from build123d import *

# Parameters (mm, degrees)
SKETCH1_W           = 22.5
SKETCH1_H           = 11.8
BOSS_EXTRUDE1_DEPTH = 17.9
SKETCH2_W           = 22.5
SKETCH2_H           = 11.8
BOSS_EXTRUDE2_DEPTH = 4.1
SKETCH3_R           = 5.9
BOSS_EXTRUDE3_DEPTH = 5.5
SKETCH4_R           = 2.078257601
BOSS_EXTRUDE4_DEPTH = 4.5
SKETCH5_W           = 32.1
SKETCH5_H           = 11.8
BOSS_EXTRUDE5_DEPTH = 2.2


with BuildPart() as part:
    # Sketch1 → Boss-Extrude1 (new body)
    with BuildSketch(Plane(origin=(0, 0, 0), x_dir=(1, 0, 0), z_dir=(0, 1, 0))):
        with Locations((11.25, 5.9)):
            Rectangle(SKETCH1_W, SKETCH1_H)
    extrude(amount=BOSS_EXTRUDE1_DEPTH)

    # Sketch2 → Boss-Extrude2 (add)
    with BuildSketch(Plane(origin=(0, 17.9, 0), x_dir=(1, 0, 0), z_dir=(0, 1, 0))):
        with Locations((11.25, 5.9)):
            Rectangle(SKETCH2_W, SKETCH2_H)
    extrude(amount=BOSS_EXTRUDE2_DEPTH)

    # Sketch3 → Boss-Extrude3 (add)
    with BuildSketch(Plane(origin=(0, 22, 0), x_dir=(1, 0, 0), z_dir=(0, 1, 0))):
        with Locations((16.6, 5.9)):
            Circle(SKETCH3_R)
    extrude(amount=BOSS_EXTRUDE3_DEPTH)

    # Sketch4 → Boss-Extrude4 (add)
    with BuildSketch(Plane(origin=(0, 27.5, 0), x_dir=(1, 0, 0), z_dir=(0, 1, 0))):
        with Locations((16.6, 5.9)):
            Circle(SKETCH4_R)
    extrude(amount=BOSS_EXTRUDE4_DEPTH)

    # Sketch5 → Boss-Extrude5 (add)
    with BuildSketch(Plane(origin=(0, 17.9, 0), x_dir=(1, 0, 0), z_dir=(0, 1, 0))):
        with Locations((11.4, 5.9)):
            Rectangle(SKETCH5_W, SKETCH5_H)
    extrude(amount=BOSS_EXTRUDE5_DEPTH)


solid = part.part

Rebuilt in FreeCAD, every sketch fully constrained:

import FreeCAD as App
import Part
import Sketcher


def add_polygon(sketch, points):
    """Adds a closed chain of lines whose ends are joined by coincident constraints."""
    first, n = sketch.GeometryCount, len(points)
    for a, b in zip(points, points[1:] + points[:1]):
        sketch.addGeometry(Part.LineSegment(App.Vector(*a, 0), App.Vector(*b, 0)), False)
    for i in range(n):
        sketch.addConstraint(Sketcher.Constraint("Coincident", first + i, 2, first + (i + 1) % n, 1))

doc = App.newDocument("Part")
body = doc.addObject("PartDesign::Body", "Body")

# Sketch on XZ plane
sketch1 = doc.addObject("Sketcher::SketchObject", "Sketch")
body.addObject(sketch1)
sketch1.AttachmentSupport = (doc.XZ_Plane, [""])
sketch1.MapMode = "FlatFace"
add_polygon(sketch1, [(0, -12), (0, 0), (22, 0), (22, -12)])  # lines 0-3
sketch1.addConstraint([
    Sketcher.Constraint("Vertical", 0),
    Sketcher.Constraint("Horizontal", 1),
    Sketcher.Constraint("Vertical", 2),
    Sketcher.Constraint("Horizontal", 3),
    Sketcher.Constraint("Coincident", 0, 2, -1, 1),
    Sketcher.Constraint("DistanceX", 1, 1, 1, 2, 22.5),
    Sketcher.Constraint("DistanceY", 0, 1, 0, 2, 11.8),
])
pad1 = doc.addObject("PartDesign::Pad", "Pad")
body.addObject(pad1)
pad1.Profile = sketch1
pad1.Length = 17.9
pad1.Reversed = True

# Sketch on XZ plane
sketch2 = doc.addObject("Sketcher::SketchObject", "Sketch001")
body.addObject(sketch2)
sketch2.AttachmentSupport = (doc.XZ_Plane, [""])
sketch2.MapMode = "FlatFace"
sketch2.AttachmentOffset = App.Placement(App.Vector(0, 0, -17.9), App.Rotation())
add_polygon(sketch2, [(0, -12), (0, 0), (22, 0), (22, -12)])  # lines 0-3
sketch2.addConstraint([
    Sketcher.Constraint("Vertical", 0),
    Sketcher.Constraint("Horizontal", 1),
    Sketcher.Constraint("Vertical", 2),
    Sketcher.Constraint("Horizontal", 3),
    Sketcher.Constraint("Coincident", 0, 2, -1, 1),
    Sketcher.Constraint("DistanceX", 1, 1, 1, 2, 22.5),
    Sketcher.Constraint("DistanceY", 0, 1, 0, 2, 11.8),
])
pad2 = doc.addObject("PartDesign::Pad", "Pad001")
body.addObject(pad2)
pad2.Profile = sketch2
pad2.Length = 4.1
pad2.Reversed = True

# Sketch on XZ plane
sketch3 = doc.addObject("Sketcher::SketchObject", "Sketch002")
body.addObject(sketch3)
sketch3.AttachmentSupport = (doc.XZ_Plane, [""])
sketch3.MapMode = "FlatFace"
sketch3.AttachmentOffset = App.Placement(App.Vector(0, 0, -22), App.Rotation())
sketch3.addGeometry(Part.Circle(App.Vector(17, -6, 0), App.Vector(0, 0, 1), 6), False)
sketch3.addConstraint([
    Sketcher.Constraint("Diameter", 0, 11.8),
    Sketcher.Constraint("DistanceX", -1, 1, 0, 3, 16.6),
    Sketcher.Constraint("DistanceY", 0, 3, -1, 1, 5.9),
])
pad3 = doc.addObject("PartDesign::Pad", "Pad002")
body.addObject(pad3)
pad3.Profile = sketch3
pad3.Length = 5.5
pad3.Reversed = True

# Sketch on XZ plane
sketch4 = doc.addObject("Sketcher::SketchObject", "Sketch003")
body.addObject(sketch4)
sketch4.AttachmentSupport = (doc.XZ_Plane, [""])
sketch4.MapMode = "FlatFace"
sketch4.AttachmentOffset = App.Placement(App.Vector(0, 0, -27.5), App.Rotation())
sketch4.addGeometry(Part.Circle(App.Vector(16.6, -5.9, 0), App.Vector(0, 0, 1), 2.1), False)
sketch4.addConstraint([
    Sketcher.Constraint("DistanceX", -1, 1, 0, 3, 16.6),
    Sketcher.Constraint("DistanceY", 0, 3, -1, 1, 5.9),
    Sketcher.Constraint("Diameter", 0, 4.156515),
])
pad4 = doc.addObject("PartDesign::Pad", "Pad003")
body.addObject(pad4)
pad4.Profile = sketch4
pad4.Length = 4.5
pad4.Reversed = True

# Sketch on XZ plane
sketch5 = doc.addObject("Sketcher::SketchObject", "Sketch004")
body.addObject(sketch5)
sketch5.AttachmentSupport = (doc.XZ_Plane, [""])
sketch5.MapMode = "FlatFace"
sketch5.AttachmentOffset = App.Placement(App.Vector(0, 0, -17.9), App.Rotation())
add_polygon(sketch5, [(-5, -12), (-5, 0), (27, 0), (27, -12)])  # lines 0-3
sketch5.addConstraint([
    Sketcher.Constraint("Vertical", 0),
    Sketcher.Constraint("Horizontal", 1),
    Sketcher.Constraint("Vertical", 2),
    Sketcher.Constraint("Horizontal", 3),
    Sketcher.Constraint("PointOnObject", 0, 2, -1),
    Sketcher.Constraint("DistanceX", 1, 1, 1, 2, 32.1),
    Sketcher.Constraint("DistanceY", 0, 1, 0, 2, 11.8),
    Sketcher.Constraint("DistanceX", 0, 2, -1, 1, 4.65),
])
pad5 = doc.addObject("PartDesign::Pad", "Pad004")
body.addObject(pad5)
pad5.Profile = sketch5
pad5.Length = 2.2
pad5.Reversed = True

doc.recompute()
